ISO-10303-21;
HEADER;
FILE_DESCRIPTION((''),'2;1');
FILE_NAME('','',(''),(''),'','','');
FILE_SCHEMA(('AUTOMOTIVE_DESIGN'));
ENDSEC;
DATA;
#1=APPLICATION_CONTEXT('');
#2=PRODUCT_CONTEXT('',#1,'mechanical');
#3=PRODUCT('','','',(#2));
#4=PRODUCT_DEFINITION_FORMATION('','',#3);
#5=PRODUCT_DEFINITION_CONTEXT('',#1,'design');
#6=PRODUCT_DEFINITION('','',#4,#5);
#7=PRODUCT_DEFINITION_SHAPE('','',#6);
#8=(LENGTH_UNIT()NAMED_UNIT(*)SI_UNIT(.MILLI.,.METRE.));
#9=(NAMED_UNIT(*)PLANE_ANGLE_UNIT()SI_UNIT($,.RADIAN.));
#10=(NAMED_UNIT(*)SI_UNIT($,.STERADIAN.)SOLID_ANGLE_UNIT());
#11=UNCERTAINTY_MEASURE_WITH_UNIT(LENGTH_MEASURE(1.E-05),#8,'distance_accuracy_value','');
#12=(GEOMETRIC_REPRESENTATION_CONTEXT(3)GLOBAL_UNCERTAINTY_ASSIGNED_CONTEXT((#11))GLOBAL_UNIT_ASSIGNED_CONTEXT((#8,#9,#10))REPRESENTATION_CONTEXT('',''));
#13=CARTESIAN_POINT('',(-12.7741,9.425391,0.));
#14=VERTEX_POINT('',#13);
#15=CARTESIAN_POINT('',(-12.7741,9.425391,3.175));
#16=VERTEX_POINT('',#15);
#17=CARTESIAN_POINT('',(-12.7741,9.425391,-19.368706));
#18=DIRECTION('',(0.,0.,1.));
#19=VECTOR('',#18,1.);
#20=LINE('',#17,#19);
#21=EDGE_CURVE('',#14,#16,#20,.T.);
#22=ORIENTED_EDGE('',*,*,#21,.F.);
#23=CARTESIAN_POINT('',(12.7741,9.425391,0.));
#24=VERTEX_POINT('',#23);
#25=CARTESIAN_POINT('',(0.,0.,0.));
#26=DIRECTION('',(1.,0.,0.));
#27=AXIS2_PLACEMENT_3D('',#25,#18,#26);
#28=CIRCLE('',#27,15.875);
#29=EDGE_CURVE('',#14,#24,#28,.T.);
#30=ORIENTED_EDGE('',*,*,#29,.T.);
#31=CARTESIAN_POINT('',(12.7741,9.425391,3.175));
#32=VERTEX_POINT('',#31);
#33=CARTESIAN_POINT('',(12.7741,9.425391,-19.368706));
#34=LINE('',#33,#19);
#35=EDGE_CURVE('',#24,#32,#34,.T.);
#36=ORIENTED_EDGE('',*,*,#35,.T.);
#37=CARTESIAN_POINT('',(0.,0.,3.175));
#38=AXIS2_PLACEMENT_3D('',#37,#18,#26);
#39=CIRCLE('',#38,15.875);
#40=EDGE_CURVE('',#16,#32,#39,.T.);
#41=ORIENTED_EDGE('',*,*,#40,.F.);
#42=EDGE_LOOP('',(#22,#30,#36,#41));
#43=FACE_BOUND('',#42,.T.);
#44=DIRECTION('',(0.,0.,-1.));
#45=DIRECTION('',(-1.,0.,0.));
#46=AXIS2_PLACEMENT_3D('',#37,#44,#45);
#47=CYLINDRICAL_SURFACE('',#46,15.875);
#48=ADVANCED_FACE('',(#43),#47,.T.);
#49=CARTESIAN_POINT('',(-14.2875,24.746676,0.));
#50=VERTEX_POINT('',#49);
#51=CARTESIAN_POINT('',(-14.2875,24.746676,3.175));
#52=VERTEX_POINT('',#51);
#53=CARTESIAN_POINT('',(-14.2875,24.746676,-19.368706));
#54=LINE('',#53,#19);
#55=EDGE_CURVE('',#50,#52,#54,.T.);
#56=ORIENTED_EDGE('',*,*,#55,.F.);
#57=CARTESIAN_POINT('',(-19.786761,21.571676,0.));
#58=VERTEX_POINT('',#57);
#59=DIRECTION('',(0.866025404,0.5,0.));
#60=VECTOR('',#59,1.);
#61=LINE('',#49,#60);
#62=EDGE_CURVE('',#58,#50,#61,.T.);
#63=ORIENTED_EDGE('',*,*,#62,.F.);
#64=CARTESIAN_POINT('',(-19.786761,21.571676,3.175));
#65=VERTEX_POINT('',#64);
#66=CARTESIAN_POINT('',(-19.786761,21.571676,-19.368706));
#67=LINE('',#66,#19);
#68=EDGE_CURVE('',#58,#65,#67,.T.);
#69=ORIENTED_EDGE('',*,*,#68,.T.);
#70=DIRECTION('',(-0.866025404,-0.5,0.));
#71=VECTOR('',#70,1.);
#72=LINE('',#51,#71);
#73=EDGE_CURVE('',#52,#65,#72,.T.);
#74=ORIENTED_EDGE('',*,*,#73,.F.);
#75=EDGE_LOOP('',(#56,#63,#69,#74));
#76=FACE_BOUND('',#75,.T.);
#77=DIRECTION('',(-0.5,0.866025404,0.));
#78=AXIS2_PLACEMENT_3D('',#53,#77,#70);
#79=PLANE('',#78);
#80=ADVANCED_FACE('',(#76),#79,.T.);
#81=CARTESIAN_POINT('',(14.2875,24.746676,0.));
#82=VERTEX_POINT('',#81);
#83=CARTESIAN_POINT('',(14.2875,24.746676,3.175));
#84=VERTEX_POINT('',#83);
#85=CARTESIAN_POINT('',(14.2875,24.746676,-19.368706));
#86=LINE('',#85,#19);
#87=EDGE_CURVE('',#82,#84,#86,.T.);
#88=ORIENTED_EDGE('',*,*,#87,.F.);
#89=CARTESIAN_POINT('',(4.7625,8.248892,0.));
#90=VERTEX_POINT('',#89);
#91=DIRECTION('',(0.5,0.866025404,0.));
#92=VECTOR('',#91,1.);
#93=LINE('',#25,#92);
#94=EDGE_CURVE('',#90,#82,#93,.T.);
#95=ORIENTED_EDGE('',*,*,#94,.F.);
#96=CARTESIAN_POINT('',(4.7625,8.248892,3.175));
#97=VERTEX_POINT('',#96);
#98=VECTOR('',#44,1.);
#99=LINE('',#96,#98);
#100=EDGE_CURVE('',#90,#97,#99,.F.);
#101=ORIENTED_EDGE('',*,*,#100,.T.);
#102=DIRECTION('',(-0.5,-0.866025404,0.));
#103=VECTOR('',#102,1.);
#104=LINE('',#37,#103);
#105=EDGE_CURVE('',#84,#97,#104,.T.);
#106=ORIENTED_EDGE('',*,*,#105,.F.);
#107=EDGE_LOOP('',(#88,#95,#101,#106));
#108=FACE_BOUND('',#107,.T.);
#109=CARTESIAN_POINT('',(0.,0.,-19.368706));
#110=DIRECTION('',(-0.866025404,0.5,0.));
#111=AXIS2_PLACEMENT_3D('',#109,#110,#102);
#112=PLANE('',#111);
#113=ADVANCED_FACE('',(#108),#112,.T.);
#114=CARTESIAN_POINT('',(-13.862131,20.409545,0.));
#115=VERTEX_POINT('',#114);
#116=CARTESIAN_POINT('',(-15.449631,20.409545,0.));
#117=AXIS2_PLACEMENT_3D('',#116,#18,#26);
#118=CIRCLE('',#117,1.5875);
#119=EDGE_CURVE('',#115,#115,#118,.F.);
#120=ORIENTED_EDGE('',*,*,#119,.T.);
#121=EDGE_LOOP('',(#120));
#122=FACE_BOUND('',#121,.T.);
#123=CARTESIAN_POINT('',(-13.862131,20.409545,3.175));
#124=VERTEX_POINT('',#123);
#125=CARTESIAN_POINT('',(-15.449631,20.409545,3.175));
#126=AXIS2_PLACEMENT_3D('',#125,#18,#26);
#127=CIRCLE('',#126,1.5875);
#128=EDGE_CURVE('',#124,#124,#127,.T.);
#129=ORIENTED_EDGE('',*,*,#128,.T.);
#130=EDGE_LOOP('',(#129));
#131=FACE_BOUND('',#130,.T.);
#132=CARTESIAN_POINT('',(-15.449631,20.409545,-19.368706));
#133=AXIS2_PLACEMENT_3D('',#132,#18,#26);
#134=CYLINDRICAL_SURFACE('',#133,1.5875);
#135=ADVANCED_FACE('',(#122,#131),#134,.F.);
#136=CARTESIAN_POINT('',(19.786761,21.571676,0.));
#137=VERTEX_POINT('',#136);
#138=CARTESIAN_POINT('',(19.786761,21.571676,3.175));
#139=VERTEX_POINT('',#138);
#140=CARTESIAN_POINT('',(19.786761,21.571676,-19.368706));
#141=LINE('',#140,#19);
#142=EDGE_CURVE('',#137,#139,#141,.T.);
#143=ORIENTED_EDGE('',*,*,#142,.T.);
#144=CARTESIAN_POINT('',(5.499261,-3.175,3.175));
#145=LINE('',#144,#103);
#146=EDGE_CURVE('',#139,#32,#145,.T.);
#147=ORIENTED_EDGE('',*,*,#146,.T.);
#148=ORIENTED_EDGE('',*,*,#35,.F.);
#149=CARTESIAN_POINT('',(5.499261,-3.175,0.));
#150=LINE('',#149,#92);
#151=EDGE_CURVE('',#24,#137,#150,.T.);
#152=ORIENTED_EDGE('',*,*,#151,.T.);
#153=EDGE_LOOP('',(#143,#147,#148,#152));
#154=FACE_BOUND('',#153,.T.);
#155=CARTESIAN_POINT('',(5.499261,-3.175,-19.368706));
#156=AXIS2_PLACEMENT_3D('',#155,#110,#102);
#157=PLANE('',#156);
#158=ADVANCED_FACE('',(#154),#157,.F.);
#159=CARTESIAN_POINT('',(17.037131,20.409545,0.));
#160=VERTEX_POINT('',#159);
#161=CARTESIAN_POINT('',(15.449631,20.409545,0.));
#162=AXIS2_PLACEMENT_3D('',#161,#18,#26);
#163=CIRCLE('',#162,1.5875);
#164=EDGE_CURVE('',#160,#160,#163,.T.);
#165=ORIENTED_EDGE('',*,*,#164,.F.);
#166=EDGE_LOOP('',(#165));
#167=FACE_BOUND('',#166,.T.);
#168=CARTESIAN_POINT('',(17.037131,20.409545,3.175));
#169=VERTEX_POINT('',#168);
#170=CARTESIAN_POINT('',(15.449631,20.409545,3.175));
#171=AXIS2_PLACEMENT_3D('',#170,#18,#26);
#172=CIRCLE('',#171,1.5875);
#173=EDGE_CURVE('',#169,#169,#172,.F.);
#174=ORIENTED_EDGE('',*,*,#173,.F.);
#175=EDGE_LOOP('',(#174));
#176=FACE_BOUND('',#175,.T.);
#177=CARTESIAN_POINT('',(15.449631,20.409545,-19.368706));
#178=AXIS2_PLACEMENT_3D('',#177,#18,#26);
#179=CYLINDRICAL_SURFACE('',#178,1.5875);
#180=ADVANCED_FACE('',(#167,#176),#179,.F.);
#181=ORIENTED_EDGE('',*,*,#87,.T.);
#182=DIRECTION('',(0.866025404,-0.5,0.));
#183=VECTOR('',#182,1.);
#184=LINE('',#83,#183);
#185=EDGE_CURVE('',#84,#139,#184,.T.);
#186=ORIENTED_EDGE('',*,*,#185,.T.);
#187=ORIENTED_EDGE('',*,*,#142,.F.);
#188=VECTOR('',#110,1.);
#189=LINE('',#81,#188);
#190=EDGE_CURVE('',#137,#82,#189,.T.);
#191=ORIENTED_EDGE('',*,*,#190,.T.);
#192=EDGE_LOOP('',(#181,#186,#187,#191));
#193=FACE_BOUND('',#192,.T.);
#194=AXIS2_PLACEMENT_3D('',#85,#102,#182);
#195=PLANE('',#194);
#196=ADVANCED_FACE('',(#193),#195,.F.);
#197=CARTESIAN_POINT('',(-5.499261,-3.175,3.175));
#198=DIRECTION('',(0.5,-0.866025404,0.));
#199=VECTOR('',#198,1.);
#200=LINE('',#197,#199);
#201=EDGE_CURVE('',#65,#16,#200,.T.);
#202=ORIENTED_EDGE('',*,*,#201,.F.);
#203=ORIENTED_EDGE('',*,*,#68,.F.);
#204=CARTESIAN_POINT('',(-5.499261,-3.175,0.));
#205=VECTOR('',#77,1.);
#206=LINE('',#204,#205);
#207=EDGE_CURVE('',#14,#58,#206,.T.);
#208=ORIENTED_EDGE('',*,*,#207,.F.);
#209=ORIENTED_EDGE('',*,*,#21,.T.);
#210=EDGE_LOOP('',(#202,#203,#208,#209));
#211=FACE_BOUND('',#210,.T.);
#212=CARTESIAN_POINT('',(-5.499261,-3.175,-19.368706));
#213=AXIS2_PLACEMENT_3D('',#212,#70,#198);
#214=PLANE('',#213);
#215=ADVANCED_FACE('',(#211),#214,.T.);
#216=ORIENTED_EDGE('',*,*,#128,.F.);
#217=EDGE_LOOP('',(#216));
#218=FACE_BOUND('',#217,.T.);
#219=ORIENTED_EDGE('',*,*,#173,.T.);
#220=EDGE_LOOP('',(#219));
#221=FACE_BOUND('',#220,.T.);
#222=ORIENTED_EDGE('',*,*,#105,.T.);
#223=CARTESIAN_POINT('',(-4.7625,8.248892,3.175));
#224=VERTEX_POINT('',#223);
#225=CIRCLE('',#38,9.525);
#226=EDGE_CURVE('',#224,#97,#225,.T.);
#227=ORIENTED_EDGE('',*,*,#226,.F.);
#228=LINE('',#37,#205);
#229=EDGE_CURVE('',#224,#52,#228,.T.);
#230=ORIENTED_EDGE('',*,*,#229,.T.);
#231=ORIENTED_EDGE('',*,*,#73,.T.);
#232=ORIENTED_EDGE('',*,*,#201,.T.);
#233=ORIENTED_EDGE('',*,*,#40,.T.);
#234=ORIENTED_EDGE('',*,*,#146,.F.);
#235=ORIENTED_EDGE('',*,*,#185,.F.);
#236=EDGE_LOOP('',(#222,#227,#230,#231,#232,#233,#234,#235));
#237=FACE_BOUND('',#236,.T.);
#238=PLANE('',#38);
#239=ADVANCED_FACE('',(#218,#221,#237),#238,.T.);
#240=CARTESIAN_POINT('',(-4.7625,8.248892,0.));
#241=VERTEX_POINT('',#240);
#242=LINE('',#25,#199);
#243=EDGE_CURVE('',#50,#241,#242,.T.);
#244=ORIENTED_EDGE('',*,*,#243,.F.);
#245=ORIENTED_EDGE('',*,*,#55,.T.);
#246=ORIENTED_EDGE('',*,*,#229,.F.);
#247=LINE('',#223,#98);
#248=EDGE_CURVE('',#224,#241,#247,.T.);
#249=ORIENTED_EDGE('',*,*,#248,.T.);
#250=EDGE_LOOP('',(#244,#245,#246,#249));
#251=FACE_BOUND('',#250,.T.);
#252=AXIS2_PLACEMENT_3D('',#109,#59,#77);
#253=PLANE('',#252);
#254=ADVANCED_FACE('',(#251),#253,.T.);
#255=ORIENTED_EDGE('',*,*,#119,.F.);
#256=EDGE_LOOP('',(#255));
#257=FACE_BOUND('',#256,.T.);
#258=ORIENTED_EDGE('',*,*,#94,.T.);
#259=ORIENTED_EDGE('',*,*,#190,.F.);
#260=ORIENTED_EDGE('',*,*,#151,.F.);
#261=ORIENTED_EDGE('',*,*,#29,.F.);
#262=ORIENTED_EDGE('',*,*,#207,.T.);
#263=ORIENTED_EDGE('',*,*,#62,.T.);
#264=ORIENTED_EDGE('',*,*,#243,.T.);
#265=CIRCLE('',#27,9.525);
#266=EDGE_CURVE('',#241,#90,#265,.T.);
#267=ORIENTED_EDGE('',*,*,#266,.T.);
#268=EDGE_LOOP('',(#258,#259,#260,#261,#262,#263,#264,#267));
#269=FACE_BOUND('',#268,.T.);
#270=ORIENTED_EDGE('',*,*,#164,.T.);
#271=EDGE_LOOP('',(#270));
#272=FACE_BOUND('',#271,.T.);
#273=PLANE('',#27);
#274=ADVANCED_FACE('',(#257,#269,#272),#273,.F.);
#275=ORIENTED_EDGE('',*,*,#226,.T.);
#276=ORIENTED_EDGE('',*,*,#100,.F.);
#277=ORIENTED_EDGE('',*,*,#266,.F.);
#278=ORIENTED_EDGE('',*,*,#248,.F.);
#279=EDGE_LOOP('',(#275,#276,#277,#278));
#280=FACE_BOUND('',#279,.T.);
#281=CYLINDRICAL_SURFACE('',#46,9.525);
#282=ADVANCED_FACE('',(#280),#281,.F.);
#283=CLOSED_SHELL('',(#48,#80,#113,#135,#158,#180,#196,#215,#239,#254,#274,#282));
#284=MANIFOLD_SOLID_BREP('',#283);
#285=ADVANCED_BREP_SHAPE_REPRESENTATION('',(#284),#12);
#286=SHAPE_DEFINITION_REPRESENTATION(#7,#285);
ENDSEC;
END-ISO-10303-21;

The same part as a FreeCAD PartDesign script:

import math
import FreeCAD as App
import Part
import Sketcher
Q = App.Units.Quantity

doc = App.newDocument("Part")
params = doc.addObject("Spreadsheet::Sheet", "Params")
for row, (alias, value) in enumerate([
    ("sketch1_diameter", "1.25 in"),
    ("sketch1_diameter2", "0.75 in"),
    ("pad1_length", "0.125 in"),
    ("sketch2_diameter", "0.125 in"),
    ("sketch2_radius", "0.625 in"),
    ("sketch2_length", "0.5 in"),
    ("sketch2_length2", "0.25 in"),
    ("pad2_length", "0.125 in"),
    ("sketch3_radius", "0.625 in"),
    ("pocket1_length", "0.125 in"),
], start=1):
    params.set(f"A{row}", alias)
    params.set(f"B{row}", "=" + value)
    params.setAlias(f"B{row}", alias)

body = doc.addObject("PartDesign::Body", "Body")

# Sketch on XY plane
sketch1 = doc.addObject("Sketcher::SketchObject", "Sketch")
body.addObject(sketch1)
sketch1.AttachmentSupport = (doc.XY_Plane, [""])
sketch1.MapMode = "FlatFace"
sketch1.addGeometry([
    Part.Circle(App.Vector(0, 0, 0), App.Vector(0, 0, 1), 16),
    Part.Circle(App.Vector(0, 0, 0), App.Vector(0, 0, 1), 10),
], False)
sketch1.addConstraint([
    Sketcher.Constraint("Coincident", 0, 3, -1, 1),
    Sketcher.Constraint("Coincident", 1, 3, -1, 1),
    Sketcher.Constraint("Diameter", 0, Q("1.25 in")),
    Sketcher.Constraint("Diameter", 1, Q("0.75 in")),
])
sketch1.setExpression("Constraints[2]", "Params.sketch1_diameter")
sketch1.setExpression("Constraints[3]", "Params.sketch1_diameter2")
pad1 = doc.addObject("PartDesign::Pad", "Pad")
body.addObject(pad1)
pad1.Profile = sketch1
pad1.setExpression("Length", "Params.pad1_length")

# Sketch on XY plane
sketch2 = doc.addObject("Sketcher::SketchObject", "Sketch001")
body.addObject(sketch2)
sketch2.AttachmentSupport = (doc.XY_Plane, [""])
sketch2.MapMode = "FlatFace"
sketch2.AttachmentOffset = App.Placement(App.Vector(0, 0, 0.125 * 25.4), App.Rotation())
sketch2.addGeometry([
    Part.ArcOfCircle(Part.Circle(App.Vector(0, 0, 0), App.Vector(0, 0, 1), 15.9), math.radians(120), math.radians(144)),  # 0
    Part.LineSegment(App.Vector(-7.9, 13.7, 0), App.Vector(-14.3, 24.7, 0)),  # 1
    Part.LineSegment(App.Vector(-14.3, 24.7, 0), App.Vector(-19.8, 21.6, 0)),  # 2
    Part.LineSegment(App.Vector(-19.8, 21.6, 0), App.Vector(-13.4, 10.6, 0)),  # 3
    Part.LineSegment(App.Vector(-13.4, 10.6, 0), App.Vector(-12.8, 9.4, 0)),  # 4
    Part.Circle(App.Vector(-15.4, 20.4, 0), App.Vector(0, 0, 1), 1.6),  # 5
    Part.LineSegment(App.Vector(14.3, 24.7, 0), App.Vector(7.9, 13.7, 0)),  # 6
    Part.ArcOfCircle(Part.Circle(App.Vector(0, 0, 0), App.Vector(0, 0, 1), 15.9), math.radians(36), math.radians(60)),  # 7
    Part.LineSegment(App.Vector(12.8, 9.4, 0), App.Vector(13.4, 10.6, 0)),  # 8
    Part.LineSegment(App.Vector(13.4, 10.6, 0), App.Vector(19.8, 21.6, 0)),  # 9
    Part.LineSegment(App.Vector(19.8, 21.6, 0), App.Vector(14.3, 24.7, 0)),  # 10
    Part.Circle(App.Vector(15.4, 20.4, 0), App.Vector(0, 0, 1), 1.6),  # 11
], False)
sketch2.addConstraint([
    Sketcher.Constraint("Coincident", 0, 1, 1, 1),
    Sketcher.Constraint("Coincident", 1, 2, 2, 1),
    Sketcher.Constraint("Coincident", 2, 2, 3, 1),
    Sketcher.Constraint("Coincident", 3, 2, 4, 1),
    Sketcher.Constraint("Coincident", 4, 2, 0, 2),
    Sketcher.Constraint("Coincident", 6, 2, 7, 2),
    Sketcher.Constraint("Coincident", 7, 1, 8, 1),
    Sketcher.Constraint("Coincident", 8, 2, 9, 1),
    Sketcher.Constraint("Coincident", 9, 2, 10, 1),
    Sketcher.Constraint("Coincident", 10, 2, 6, 1),
    Sketcher.Constraint("Coincident", 0, 3, -1, 1),
    Sketcher.Constraint("Coincident", 7, 3, -1, 1),
    Sketcher.Constraint("Equal", 0, 7),
    Sketcher.Constraint("Equal", 5, 11),
    Sketcher.Constraint("Symmetric", 5, 3, 11, 3, -2),
    Sketcher.Constraint("Symmetric", 3, 2, 8, 2, -2),
    Sketcher.Constraint("Symmetric", 2, 2, 9, 2, -2),
    Sketcher.Constraint("Symmetric", 1, 2, 10, 2, -2),
    Sketcher.Constraint("Perpendicular", 1, 2),
    Sketcher.Constraint("Perpendicular", 2, 3),
    Sketcher.Constraint("Parallel", 3, 4),
    Sketcher.Constraint("Parallel", 6, 8),
    Sketcher.Constraint("Parallel", 8, 9),
    Sketcher.Constraint("Equal", 1, 3),
    Sketcher.Constraint("Diameter", 5, Q("0.125 in")),
    Sketcher.Constraint("Angle", 1, Q("120 deg")),
    Sketcher.Constraint("Radius", 0, Q("0.625 in")),
    Sketcher.Constraint("Distance", 1, Q("0.5 in")),
    Sketcher.Constraint("Distance", 2, Q("0.25 in")),
    Sketcher.Constraint("DistanceX", 0, 1, -1, 1, Q("0.3125 in")),
    Sketcher.Constraint("DistanceX", 5, 3, -1, 1, Q("15.449631 mm")),
    Sketcher.Constraint("DistanceY", 0, 1, 5, 3, Q("6.661392 mm")),
])
sketch2.setExpression("Constraints[24]", "Params.sketch2_diameter")
sketch2.setExpression("Constraints[26]", "Params.sketch2_radius")
sketch2.setExpression("Constraints[27]", "Params.sketch2_length")
sketch2.setExpression("Constraints[28]", "Params.sketch2_length2")
pad2 = doc.addObject("PartDesign::Pad", "Pad001")
body.addObject(pad2)
pad2.Profile = sketch2
pad2.setExpression("Length", "Params.pad2_length")
pad2.Reversed = True

# Sketch on XY plane
sketch3 = doc.addObject("Sketcher::SketchObject", "Sketch002")
body.addObject(sketch3)
sketch3.AttachmentSupport = (doc.XY_Plane, [""])
sketch3.MapMode = "FlatFace"
sketch3.AttachmentOffset = App.Placement(App.Vector(0, 0, 0.125 * 25.4), App.Rotation())
sketch3.addGeometry([
    Part.LineSegment(App.Vector(-8, 14, 0), App.Vector(0, 0, 0)),
    Part.LineSegment(App.Vector(0, 0, 0), App.Vector(8, 14, 0)),
    Part.ArcOfCircle(Part.Circle(App.Vector(0, 0, 0), App.Vector(0, 0, 1), 16), math.radians(60), math.radians(120)),
], False)
sketch3.addConstraint([
    Sketcher.Constraint("Coincident", 0, 2, 1, 1),
    Sketcher.Constraint("Coincident", 1, 2, 2, 1),
    Sketcher.Constraint("Coincident", 2, 2, 0, 1),
    Sketcher.Constraint("Coincident", 2, 3, -1, 1),
    Sketcher.Constraint("Coincident", 0, 2, -1, 1),
    Sketcher.Constraint("Horizontal", 1, 2, 2, 2),
    Sketcher.Constraint("Angle", 0, Q("-60 deg")),
    Sketcher.Constraint("Radius", 2, Q("0.625 in")),
])
sketch3.setExpression("Constraints[7]", "Params.sketch3_radius")
pocket1 = doc.addObject("PartDesign::Pocket", "Pocket")
body.addObject(pocket1)
pocket1.Profile = sketch3
pocket1.setExpression("Length", "Params.pocket1_length")

doc.recompute()
